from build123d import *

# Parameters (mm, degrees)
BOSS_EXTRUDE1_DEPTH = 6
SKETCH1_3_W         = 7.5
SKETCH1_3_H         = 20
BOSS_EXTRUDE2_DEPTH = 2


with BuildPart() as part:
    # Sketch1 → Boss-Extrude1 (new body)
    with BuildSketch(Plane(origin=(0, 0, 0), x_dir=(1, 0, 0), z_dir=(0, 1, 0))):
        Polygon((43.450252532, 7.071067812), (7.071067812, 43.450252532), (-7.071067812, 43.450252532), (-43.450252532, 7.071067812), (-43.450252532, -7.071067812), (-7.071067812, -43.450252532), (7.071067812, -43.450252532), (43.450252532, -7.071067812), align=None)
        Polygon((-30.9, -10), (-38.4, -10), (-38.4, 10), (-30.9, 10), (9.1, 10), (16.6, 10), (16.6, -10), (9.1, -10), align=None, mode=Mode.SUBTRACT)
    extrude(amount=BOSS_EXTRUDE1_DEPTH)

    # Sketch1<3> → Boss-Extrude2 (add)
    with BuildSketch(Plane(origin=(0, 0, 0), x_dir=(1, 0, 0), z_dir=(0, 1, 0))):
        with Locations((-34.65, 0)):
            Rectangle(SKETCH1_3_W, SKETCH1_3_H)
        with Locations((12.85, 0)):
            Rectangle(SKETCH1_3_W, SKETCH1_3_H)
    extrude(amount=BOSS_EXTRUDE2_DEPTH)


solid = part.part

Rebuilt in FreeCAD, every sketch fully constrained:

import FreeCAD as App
import Part
import Sketcher


def add_polygon(sketch, points):
    """Adds a closed chain of lines whose ends are joined by coincident constraints."""
    first, n = sketch.GeometryCount, len(points)
    for a, b in zip(points, points[1:] + points[:1]):
        sketch.addGeometry(Part.LineSegment(App.Vector(*a, 0), App.Vector(*b, 0)), False)
    for i in range(n):
        sketch.addConstraint(Sketcher.Constraint("Coincident", first + i, 2, first + (i + 1) % n, 1))

doc = App.newDocument("Part")
body = doc.addObject("PartDesign::Body", "Body")

# Sketch on XZ plane
sketch1 = doc.addObject("Sketcher::SketchObject", "Sketch")
body.addObject(sketch1)
sketch1.AttachmentSupport = (doc.XZ_Plane, [""])
sketch1.MapMode = "FlatFace"
add_polygon(sketch1, [(43, -7), (7, -43), (-7, -43), (-43, -7), (-43, 7), (-7, 43), (7, 43), (43, 7)])  # lines 0-7
add_polygon(sketch1, [(17, 10), (-38, 10), (-38, -10), (17, -10)])  # lines 8-11
sketch1.addConstraint([
    Sketcher.Constraint("Horizontal", 1),
    Sketcher.Constraint("Vertical", 3),
    Sketcher.Constraint("Horizontal", 5),
    Sketcher.Constraint("Vertical", 7),
    Sketcher.Constraint("Horizontal", 8),
    Sketcher.Constraint("Vertical", 9),
    Sketcher.Constraint("Horizontal", 10),
    Sketcher.Constraint("Vertical", 11),
    Sketcher.Constraint("Symmetric", 0, 2, 4, 2, -1, 1),
    Sketcher.Constraint("Symmetric", 2, 2, 6, 2, -1, 1),
    Sketcher.Constraint("Perpendicular", 0, 2),
    Sketcher.Constraint("Perpendicular", 2, 4),
    Sketcher.Constraint("Perpendicular", 4, 6),
    Sketcher.Constraint("Horizontal", 3, 2, 6, 2),
    Sketcher.Constraint("Vertical", 1, 2, 4, 2),
    Sketcher.Constraint("Equal", 5, 3),
    Sketcher.Constraint("DistanceX", 8, 2, 8, 1, 55.0),
    Sketcher.Constraint("DistanceY", 9, 2, 9, 1, 20.0),
    Sketcher.Constraint("DistanceY", -1, 1, 8, 2, 10.0),
    Sketcher.Constraint("DistanceX", 8, 2, -1, 1, 38.4),
    Sketcher.Constraint("DistanceX", 1, 2, 1, 1, 14.142136),
    Sketcher.Constraint("DistanceX", 2, 2, 0, 2, 50.52132),
])
pad1 = doc.addObject("PartDesign::Pad", "Pad")
body.addObject(pad1)
pad1.Profile = sketch1
pad1.Length = 6
pad1.Reversed = True

# Sketch on XZ plane
sketch2 = doc.addObject("Sketcher::SketchObject", "Sketch001")
body.addObject(sketch2)
sketch2.AttachmentSupport = (doc.XZ_Plane, [""])
sketch2.MapMode = "FlatFace"
add_polygon(sketch2, [(-38, -10), (-38, 10), (-31, 10), (-31, -10)])  # lines 0-3
add_polygon(sketch2, [(9, -10), (9, 10), (17, 10), (17, -10)])  # lines 4-7
sketch2.addConstraint([
    Sketcher.Constraint("Vertical", 0),
    Sketcher.Constraint("Horizontal", 1),
    Sketcher.Constraint("Vertical", 2),
    Sketcher.Constraint("Horizontal", 3),
    Sketcher.Constraint("Vertical", 4),
    Sketcher.Constraint("Horizontal", 5),
    Sketcher.Constraint("Vertical", 6),
    Sketcher.Constraint("Horizontal", 7),
    Sketcher.Constraint("Horizontal", 1, 2, 4, 2),
    Sketcher.Constraint("Horizontal", 3, 2, 6, 2),
    Sketcher.Constraint("Equal", 3, 5),
    Sketcher.Constraint("DistanceY", 0, 1, 0, 2, 20.0),
    Sketcher.Constraint("DistanceX", 1, 1, 1, 2, 7.5),
    Sketcher.Constraint("DistanceY", -1, 1, 0, 2, 10.0),
    Sketcher.Constraint("DistanceX", 1, 2, 4, 2, 40.0),
    Sketcher.Constraint("DistanceX", 0, 2, -1, 1, 38.4),
])
pad2 = doc.addObject("PartDesign::Pad", "Pad001")
body.addObject(pad2)
pad2.Profile = sketch2
pad2.Length = 2
pad2.Reversed = True

doc.recompute()
